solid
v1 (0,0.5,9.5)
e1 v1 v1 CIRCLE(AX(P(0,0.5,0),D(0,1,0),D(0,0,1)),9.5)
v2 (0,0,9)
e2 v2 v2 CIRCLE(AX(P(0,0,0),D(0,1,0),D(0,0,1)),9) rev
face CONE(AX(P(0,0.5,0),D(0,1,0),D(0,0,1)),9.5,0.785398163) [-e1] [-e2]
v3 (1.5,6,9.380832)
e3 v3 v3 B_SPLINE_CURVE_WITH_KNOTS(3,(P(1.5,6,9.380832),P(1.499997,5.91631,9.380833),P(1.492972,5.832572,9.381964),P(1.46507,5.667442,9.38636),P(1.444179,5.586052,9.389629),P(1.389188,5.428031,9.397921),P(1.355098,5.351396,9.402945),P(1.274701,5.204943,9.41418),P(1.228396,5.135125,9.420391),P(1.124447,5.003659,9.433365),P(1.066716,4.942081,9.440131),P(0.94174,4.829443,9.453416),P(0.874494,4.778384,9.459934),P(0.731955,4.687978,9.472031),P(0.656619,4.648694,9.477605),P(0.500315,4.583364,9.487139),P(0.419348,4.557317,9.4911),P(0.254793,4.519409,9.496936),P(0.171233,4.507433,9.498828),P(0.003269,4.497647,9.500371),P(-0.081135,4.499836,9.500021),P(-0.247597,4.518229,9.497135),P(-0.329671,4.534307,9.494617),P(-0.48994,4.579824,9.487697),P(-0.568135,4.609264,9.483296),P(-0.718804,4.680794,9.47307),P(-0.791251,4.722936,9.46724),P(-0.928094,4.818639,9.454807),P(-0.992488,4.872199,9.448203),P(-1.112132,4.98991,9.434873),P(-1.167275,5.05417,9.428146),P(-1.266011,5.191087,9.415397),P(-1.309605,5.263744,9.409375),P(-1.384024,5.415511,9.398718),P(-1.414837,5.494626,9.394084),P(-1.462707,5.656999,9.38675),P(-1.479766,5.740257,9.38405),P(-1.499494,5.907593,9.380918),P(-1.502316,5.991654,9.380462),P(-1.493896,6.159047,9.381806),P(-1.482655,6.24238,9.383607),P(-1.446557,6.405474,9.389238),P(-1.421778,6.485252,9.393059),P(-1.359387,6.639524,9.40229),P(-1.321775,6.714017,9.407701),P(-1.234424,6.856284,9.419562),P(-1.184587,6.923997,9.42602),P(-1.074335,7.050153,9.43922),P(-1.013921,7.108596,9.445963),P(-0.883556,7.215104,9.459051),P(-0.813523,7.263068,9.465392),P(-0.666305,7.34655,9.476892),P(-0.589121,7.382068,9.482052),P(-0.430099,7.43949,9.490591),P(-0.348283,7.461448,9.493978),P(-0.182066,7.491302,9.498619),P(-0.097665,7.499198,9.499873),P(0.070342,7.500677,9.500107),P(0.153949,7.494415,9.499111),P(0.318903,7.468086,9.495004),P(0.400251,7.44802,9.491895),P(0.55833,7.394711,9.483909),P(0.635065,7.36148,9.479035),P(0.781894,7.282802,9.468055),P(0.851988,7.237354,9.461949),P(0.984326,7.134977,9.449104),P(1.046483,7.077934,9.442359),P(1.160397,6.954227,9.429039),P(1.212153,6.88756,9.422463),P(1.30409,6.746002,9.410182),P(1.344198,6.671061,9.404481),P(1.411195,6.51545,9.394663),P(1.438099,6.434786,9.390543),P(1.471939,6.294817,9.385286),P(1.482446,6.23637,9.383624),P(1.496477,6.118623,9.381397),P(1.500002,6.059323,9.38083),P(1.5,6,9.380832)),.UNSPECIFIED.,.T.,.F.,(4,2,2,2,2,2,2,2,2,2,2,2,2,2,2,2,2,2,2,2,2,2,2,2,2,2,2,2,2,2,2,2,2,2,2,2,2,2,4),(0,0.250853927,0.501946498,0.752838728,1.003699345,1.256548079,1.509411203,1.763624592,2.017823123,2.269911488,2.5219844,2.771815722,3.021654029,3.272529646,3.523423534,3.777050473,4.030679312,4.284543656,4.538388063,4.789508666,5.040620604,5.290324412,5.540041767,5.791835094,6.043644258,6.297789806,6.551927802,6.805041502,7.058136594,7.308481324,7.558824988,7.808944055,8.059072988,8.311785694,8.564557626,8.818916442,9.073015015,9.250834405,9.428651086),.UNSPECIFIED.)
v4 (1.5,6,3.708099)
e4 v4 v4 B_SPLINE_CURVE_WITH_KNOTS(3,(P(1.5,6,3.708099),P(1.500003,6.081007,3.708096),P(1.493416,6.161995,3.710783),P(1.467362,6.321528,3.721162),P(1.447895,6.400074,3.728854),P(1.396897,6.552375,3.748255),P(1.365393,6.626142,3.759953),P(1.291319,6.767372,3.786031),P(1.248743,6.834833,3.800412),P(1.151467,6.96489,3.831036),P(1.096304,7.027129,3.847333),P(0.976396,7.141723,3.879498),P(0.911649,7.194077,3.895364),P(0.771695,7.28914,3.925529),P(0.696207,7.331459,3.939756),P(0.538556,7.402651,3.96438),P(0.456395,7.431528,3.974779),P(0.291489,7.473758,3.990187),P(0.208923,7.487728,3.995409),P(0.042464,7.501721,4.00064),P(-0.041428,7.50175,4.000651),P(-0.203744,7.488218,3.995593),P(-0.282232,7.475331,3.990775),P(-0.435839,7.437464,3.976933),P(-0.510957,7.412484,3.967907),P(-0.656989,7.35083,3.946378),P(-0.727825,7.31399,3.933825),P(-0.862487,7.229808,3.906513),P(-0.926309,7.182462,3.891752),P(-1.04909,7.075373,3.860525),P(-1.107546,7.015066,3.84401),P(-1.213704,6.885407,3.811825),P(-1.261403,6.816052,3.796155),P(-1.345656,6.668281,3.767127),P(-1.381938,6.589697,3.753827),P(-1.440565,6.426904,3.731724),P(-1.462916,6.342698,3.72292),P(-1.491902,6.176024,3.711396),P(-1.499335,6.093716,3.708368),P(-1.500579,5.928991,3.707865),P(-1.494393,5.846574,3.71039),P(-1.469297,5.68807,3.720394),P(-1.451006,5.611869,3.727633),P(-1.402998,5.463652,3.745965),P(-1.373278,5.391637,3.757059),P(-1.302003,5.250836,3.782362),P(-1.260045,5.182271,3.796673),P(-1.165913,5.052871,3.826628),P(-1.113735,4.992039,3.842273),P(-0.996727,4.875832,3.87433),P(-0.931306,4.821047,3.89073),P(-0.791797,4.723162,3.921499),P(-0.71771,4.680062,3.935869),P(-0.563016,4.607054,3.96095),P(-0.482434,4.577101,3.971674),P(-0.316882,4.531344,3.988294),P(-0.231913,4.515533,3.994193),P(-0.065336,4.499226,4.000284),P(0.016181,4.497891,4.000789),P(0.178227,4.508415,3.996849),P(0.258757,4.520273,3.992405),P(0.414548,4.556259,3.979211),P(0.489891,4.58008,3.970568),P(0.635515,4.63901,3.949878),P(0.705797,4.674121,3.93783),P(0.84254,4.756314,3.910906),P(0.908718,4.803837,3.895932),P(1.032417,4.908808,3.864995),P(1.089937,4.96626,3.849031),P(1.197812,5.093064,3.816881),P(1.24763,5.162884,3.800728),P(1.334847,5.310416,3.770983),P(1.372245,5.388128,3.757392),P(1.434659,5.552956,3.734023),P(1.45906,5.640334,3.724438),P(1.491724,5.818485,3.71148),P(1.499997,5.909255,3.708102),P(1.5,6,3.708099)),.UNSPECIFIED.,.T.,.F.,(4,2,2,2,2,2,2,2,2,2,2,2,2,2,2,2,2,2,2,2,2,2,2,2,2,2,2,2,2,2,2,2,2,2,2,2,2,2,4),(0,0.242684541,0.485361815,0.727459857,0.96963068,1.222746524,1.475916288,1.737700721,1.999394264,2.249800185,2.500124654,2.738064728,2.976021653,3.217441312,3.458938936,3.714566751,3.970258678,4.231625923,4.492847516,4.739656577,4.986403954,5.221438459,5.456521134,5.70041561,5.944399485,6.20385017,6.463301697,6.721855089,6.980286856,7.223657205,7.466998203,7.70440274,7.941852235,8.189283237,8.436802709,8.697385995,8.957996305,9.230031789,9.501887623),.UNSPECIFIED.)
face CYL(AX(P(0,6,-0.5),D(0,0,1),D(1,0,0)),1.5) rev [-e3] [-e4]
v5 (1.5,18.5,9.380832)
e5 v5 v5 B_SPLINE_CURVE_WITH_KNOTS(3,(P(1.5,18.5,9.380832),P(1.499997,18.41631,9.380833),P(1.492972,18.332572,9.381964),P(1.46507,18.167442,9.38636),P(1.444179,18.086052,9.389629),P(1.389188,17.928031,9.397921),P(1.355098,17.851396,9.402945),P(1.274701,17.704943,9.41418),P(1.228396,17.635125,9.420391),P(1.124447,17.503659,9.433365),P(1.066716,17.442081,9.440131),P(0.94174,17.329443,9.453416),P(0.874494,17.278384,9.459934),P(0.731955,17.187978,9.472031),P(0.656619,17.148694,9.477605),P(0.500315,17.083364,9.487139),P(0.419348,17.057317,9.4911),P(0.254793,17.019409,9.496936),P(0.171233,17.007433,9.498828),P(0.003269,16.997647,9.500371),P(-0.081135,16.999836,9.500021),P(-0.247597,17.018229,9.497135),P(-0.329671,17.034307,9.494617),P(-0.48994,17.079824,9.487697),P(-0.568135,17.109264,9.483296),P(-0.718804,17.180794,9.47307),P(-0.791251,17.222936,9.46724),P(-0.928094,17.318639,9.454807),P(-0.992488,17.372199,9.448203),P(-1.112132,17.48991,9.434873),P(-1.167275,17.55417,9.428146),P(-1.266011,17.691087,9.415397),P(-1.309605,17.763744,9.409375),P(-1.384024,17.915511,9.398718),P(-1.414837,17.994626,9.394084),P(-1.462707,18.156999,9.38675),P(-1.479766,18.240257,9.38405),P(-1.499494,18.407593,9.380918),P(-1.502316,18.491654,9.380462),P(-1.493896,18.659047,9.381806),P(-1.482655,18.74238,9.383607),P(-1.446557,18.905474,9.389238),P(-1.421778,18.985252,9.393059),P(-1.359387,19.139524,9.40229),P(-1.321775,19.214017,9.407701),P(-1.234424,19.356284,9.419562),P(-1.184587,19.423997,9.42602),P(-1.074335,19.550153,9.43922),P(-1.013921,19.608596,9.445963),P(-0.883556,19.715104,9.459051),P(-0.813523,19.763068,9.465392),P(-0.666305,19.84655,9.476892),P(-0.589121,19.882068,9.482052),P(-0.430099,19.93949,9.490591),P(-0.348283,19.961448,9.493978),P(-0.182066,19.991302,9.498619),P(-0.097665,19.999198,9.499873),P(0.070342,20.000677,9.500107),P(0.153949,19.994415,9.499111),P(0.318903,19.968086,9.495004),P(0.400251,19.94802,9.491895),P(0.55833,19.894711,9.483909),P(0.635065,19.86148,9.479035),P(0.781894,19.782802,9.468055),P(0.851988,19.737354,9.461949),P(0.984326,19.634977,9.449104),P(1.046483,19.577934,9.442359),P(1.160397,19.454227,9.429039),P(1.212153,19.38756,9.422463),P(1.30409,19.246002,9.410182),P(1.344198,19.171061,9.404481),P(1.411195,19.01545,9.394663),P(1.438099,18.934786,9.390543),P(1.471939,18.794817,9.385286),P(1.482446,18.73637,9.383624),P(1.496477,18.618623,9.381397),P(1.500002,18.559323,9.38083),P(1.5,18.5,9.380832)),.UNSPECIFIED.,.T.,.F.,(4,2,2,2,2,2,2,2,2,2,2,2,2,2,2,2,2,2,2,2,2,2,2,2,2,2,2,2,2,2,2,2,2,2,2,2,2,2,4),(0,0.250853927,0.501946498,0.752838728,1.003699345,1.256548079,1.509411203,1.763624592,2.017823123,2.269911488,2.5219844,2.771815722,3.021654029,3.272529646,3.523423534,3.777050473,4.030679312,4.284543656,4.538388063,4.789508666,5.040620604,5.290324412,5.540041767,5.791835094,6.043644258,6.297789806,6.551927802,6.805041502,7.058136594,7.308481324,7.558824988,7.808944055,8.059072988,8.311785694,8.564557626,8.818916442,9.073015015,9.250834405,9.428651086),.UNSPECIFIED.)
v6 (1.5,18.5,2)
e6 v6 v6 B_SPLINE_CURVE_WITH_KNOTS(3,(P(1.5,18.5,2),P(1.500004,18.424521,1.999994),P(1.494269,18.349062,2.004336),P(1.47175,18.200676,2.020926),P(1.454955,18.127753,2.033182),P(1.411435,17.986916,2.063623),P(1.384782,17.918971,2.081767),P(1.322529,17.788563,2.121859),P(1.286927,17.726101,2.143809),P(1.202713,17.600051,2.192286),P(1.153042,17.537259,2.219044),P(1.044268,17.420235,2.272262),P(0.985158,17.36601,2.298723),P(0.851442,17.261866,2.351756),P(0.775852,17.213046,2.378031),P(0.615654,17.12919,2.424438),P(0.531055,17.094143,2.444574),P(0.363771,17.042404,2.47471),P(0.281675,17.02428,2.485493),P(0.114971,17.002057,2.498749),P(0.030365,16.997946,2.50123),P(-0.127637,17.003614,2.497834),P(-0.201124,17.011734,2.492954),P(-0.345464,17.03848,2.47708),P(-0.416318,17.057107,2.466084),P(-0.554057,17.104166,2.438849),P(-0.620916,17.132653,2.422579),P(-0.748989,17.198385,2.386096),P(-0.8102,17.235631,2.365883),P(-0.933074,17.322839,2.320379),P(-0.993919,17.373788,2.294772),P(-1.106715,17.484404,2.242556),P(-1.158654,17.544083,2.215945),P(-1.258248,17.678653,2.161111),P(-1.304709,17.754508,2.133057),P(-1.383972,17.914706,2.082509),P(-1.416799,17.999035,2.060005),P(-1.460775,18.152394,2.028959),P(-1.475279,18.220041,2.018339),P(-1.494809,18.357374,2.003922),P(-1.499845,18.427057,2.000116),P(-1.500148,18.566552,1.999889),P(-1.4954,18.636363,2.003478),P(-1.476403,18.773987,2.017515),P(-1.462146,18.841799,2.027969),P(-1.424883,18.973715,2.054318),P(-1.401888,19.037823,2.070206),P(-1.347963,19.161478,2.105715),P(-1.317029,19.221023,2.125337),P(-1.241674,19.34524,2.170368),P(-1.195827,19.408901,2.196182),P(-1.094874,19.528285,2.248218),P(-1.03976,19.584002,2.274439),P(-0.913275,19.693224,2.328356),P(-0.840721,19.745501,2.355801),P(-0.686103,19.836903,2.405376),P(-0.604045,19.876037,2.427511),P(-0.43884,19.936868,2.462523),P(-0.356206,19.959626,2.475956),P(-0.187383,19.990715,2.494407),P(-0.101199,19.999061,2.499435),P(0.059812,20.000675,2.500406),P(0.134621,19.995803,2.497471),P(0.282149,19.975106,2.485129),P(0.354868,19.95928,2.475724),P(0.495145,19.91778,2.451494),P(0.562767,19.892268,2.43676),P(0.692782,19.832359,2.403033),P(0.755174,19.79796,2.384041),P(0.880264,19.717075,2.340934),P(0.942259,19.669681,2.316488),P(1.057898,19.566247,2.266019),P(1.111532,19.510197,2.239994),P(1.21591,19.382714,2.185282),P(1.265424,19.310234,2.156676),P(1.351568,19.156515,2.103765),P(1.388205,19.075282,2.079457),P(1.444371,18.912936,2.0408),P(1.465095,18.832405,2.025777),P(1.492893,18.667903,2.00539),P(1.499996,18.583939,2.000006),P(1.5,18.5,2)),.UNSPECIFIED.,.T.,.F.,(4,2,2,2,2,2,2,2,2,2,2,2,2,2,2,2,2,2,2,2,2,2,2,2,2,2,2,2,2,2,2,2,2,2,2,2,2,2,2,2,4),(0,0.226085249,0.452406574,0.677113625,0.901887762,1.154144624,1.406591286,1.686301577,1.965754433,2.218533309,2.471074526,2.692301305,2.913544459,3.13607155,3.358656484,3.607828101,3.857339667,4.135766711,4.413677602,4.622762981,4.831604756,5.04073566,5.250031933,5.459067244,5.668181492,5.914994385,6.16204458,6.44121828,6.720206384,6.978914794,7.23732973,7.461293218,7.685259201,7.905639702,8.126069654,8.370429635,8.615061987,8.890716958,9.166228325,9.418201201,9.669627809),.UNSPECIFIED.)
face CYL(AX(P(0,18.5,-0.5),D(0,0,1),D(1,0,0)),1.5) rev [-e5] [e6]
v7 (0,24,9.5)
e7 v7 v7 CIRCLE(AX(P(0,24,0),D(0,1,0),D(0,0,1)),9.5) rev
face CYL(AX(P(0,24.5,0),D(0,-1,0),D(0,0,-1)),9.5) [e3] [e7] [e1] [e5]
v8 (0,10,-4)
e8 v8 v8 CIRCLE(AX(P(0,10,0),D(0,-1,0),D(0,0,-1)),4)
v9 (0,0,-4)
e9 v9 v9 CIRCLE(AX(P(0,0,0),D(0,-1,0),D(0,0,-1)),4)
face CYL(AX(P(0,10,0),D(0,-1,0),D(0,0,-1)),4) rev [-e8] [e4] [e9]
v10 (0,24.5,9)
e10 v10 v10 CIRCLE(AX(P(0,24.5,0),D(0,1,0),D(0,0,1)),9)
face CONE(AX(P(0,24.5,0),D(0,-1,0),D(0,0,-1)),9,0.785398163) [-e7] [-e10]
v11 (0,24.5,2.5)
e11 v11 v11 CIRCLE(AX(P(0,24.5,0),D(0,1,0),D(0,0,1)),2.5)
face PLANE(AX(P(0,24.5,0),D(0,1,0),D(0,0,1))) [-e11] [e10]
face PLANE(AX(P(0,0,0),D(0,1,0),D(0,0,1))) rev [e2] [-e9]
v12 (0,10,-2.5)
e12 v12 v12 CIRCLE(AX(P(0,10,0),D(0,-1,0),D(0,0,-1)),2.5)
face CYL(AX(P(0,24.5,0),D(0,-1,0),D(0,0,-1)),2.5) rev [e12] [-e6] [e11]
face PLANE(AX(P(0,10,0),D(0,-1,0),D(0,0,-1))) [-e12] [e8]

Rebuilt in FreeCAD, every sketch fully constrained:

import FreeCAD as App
import Part
import Sketcher
from FreeCAD import Vector
Q = App.Units.Quantity


def edges_at(feature, points):
    """Names of the edges that pass closest to the given points."""
    edges = feature.Shape.Edges
    near = lambda p: min(range(len(edges)), key=lambda i: edges[i].distToShape(Part.Vertex(*p))[0])
    return sorted({f"Edge{near(p) + 1}" for p in points})

doc = App.newDocument("Part")
body = doc.addObject("PartDesign::Body", "Body")

# Sketch on XZ plane
sketch1 = body.newObject("Sketcher::SketchObject", "Sketch")
sketch1.AttachmentSupport = (doc.getObject("XZ_Plane"), [""])
sketch1.MapMode = "FlatFace"
sketch1.addGeometry(Part.Circle(Vector(0, 0, 0), Vector(0, 0, 1), 9.5), False)
sketch1.addGeometry(Part.Circle(Vector(0, 0, 0), Vector(0, 0, 1), 2.5), False)
sketch1.addConstraint(Sketcher.Constraint("Coincident", 0, 3, -1, 1))
sketch1.addConstraint(Sketcher.Constraint("Coincident", 1, 3, -1, 1))
sketch1.addConstraint(Sketcher.Constraint("Diameter", 0, Q("19 mm")))
sketch1.addConstraint(Sketcher.Constraint("Diameter", 1, Q("5 mm")))
pad1 = body.newObject("PartDesign::Pad", "Pad")
pad1.Profile = sketch1
pad1.Length = 24.5
pad1.Reversed = True
doc.recompute()

chamfer = body.newObject("PartDesign::Chamfer", "Chamfer")
chamfer.Base = (pad1, edges_at(pad1, [(0, 0, -9.5), (0, 24.5, -9.5)]))
chamfer.Size = 0.5

# Sketch on XZ plane
sketch2 = body.newObject("Sketcher::SketchObject", "Sketch001")
sketch2.AttachmentSupport = (doc.getObject("XZ_Plane"), [""])
sketch2.MapMode = "FlatFace"
sketch2.addGeometry(Part.Circle(Vector(0, 0, 0), Vector(0, 0, 1), 4), False)
sketch2.addConstraint(Sketcher.Constraint("Coincident", 0, 3, -1, 1))
sketch2.addConstraint(Sketcher.Constraint("Diameter", 0, Q("8 mm")))
pocket1 = body.newObject("PartDesign::Pocket", "Pocket")
pocket1.Profile = sketch2
pocket1.Length = 10

# Sketch on XY plane
sketch3 = body.newObject("Sketcher::SketchObject", "Sketch002")
sketch3.AttachmentSupport = (doc.getObject("XY_Plane"), [""])
sketch3.MapMode = "FlatFace"
sketch3.AttachmentOffset = App.Placement(Vector(0, 0, 9.5), App.Rotation())
sketch3.addGeometry(Part.Circle(Vector(0, 6, 0), Vector(0, 0, 1), 1.5), False)
sketch3.addGeometry(Part.Circle(Vector(0, 18.5, 0), Vector(0, 0, 1), 1.5), False)
sketch3.addConstraint(Sketcher.Constraint("Equal", 0, 1))
sketch3.addConstraint(Sketcher.Constraint("PointOnObject", 0, 3, -2))
sketch3.addConstraint(Sketcher.Constraint("PointOnObject", 1, 3, -2))
sketch3.addConstraint(Sketcher.Constraint("Diameter", 0, Q("3 mm")))
sketch3.addConstraint(Sketcher.Constraint("DistanceY", -1, 1, 0, 3, Q("6 mm")))
sketch3.addConstraint(Sketcher.Constraint("DistanceY", -1, 1, 1, 3, Q("18.5 mm")))
pocket2 = body.newObject("PartDesign::Pocket", "Pocket001")
pocket2.Profile = sketch3
pocket2.Length = 10

doc.recompute()
